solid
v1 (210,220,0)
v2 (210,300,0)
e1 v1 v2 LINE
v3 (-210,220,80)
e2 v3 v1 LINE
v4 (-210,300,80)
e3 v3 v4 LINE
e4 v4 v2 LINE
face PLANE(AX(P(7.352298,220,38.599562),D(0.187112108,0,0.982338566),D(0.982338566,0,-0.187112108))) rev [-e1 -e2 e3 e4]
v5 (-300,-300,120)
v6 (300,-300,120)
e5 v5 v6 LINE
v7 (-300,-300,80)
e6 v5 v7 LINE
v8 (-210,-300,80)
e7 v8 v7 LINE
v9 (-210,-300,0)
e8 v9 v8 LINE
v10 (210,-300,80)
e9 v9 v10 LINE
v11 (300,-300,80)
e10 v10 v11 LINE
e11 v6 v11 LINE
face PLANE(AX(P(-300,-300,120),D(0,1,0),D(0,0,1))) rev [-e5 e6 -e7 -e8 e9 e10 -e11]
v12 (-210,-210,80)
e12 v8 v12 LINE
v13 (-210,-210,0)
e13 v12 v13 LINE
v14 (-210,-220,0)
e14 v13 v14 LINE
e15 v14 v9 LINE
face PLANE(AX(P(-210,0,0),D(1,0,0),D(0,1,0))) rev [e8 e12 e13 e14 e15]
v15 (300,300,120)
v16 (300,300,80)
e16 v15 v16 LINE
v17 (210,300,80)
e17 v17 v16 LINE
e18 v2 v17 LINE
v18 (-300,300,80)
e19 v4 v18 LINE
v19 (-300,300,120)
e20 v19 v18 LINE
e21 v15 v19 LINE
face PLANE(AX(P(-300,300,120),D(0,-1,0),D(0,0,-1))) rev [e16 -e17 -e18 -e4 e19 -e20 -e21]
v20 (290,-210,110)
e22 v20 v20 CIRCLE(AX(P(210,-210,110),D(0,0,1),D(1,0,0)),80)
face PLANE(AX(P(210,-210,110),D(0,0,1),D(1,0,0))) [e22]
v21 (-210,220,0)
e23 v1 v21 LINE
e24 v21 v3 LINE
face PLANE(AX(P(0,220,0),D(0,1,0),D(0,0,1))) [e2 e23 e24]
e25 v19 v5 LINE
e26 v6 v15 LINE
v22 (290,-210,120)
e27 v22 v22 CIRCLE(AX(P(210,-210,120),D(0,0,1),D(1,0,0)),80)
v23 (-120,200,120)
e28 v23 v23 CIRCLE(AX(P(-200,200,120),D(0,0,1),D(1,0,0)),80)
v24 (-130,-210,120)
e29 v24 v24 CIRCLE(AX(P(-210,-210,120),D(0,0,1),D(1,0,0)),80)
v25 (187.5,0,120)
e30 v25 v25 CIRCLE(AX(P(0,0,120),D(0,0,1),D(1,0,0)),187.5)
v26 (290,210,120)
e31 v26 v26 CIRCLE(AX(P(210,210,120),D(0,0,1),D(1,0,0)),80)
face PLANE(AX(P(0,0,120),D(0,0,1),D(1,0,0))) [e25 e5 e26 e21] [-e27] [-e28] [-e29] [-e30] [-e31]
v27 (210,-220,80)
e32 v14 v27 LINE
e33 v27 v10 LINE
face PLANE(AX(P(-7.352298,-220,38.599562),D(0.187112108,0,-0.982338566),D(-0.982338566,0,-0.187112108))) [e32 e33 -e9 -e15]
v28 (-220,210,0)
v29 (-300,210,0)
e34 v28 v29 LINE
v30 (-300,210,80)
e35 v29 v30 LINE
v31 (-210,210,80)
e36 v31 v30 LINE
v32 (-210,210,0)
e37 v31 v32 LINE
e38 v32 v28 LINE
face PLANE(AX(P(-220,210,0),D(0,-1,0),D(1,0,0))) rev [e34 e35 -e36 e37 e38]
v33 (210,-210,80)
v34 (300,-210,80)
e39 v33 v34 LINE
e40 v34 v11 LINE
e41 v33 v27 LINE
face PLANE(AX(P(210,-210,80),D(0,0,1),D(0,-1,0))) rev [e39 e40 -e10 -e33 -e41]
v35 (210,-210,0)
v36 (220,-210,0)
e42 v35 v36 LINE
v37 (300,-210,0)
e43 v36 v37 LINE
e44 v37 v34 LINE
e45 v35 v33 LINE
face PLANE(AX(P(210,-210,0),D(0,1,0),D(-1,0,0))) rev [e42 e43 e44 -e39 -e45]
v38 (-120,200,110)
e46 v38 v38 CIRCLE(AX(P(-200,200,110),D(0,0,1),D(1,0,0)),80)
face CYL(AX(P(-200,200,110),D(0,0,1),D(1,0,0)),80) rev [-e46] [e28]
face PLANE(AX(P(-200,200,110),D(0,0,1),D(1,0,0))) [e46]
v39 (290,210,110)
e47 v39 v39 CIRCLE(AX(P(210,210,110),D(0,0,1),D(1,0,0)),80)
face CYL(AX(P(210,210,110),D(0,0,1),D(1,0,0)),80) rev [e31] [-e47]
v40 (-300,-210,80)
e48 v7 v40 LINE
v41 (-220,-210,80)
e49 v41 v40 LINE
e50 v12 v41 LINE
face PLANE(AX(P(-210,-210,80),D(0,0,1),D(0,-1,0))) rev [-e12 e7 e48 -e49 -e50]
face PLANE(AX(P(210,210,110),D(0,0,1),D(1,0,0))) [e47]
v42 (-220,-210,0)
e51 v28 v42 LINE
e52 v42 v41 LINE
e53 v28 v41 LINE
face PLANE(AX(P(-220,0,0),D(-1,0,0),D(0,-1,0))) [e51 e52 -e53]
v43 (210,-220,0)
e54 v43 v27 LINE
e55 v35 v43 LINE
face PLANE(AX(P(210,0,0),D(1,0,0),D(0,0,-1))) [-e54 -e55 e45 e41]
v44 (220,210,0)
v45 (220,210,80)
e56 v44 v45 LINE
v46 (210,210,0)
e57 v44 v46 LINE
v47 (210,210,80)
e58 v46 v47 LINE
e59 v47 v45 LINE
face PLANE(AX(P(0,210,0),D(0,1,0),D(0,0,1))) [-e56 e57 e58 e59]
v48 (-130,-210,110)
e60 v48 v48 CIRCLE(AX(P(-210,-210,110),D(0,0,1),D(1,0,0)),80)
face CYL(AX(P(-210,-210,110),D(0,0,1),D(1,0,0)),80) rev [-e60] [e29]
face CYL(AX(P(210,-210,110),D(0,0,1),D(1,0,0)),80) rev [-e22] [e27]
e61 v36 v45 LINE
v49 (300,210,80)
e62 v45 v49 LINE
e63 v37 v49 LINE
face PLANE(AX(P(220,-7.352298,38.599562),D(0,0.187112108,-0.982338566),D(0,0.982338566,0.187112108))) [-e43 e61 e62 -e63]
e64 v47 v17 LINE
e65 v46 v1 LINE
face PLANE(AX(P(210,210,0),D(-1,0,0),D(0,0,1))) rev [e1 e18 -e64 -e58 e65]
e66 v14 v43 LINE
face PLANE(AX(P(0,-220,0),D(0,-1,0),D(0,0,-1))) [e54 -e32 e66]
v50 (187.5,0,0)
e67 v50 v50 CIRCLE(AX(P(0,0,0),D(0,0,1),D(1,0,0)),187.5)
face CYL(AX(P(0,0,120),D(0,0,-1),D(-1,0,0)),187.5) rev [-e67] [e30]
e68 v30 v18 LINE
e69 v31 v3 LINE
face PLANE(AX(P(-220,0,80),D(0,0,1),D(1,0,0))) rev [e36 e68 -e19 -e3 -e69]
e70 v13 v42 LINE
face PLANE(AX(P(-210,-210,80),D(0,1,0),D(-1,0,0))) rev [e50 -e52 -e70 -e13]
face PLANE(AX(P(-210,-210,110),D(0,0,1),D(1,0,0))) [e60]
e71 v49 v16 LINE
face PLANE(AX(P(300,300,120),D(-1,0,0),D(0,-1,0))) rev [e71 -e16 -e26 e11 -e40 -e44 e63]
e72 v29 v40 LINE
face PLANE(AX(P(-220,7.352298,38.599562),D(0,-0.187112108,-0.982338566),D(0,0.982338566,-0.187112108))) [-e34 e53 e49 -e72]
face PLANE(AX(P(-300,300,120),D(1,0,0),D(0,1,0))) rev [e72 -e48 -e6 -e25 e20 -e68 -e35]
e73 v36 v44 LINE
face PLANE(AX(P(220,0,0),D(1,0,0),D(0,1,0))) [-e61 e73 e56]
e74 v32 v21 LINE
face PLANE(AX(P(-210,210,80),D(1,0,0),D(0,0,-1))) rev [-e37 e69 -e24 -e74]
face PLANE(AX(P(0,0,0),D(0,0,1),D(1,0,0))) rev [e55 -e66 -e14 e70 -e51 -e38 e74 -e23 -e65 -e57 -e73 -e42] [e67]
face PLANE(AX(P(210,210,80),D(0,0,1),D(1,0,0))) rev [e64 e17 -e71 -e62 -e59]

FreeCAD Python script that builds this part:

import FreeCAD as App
import Part
import Sketcher
from FreeCAD import Vector
Q = App.Units.Quantity

doc = App.newDocument("Part")
body = doc.addObject("PartDesign::Body", "Body")

sketch1 = body.newObject("Sketcher::SketchObject", "Sketch")
sketch1.AttachmentSupport = (doc.getObject("XY_Plane"), [""])
sketch1.MapMode = "FlatFace"
sketch1.addGeometry([
    Part.LineSegment(Vector(-300, 300, 0), Vector(-300, -300, 0)),
    Part.LineSegment(Vector(-300, -300, 0), Vector(300, -300, 0)),
    Part.LineSegment(Vector(300, -300, 0), Vector(300, 300, 0)),
    Part.LineSegment(Vector(300, 300, 0), Vector(-300, 300, 0)),
    Part.Circle(Vector(0, 0, 0), Vector(0, 0, 1), 188),
], False)
sketch1.addConstraint([
    Sketcher.Constraint("Coincident", 0, 2, 1, 1),
    Sketcher.Constraint("Coincident", 1, 2, 2, 1),
    Sketcher.Constraint("Coincident", 2, 2, 3, 1),
    Sketcher.Constraint("Coincident", 3, 2, 0, 1),
    Sketcher.Constraint("Vertical", 0),
    Sketcher.Constraint("Horizontal", 1),
    Sketcher.Constraint("Vertical", 2),
    Sketcher.Constraint("Horizontal", 3),
    Sketcher.Constraint("Coincident", 4, 3, -1, 1),
    Sketcher.Constraint("Symmetric", 0, 2, 2, 2, -1, 1),
    Sketcher.Constraint("Equal", 3, 0),
    Sketcher.Constraint("Diameter", 4, Q("375 mm")),
    Sketcher.Constraint("DistanceX", 1, 1, 1, 2, Q("600 mm")),
])
pad1 = body.newObject("PartDesign::Pad", "Pad")
pad1.Profile = sketch1
pad1.Length = 120

sketch2 = body.newObject("Sketcher::SketchObject", "Sketch001")
sketch2.AttachmentSupport = (doc.getObject("YZ_Plane"), [""])
sketch2.MapMode = "FlatFace"
sketch2.AttachmentOffset = App.Placement(Vector(0, 0, -300), App.Rotation())
sketch2.addGeometry([
    Part.LineSegment(Vector(210, 0, 0), Vector(-210, 0, 0)),
    Part.LineSegment(Vector(-210, 0, 0), Vector(-210, 80, 0)),
    Part.LineSegment(Vector(-210, 80, 0), Vector(210, 0, 0)),
    Part.LineSegment(Vector(300, 0, 0), Vector(210, 0, 0)),
    Part.LineSegment(Vector(210, 0, 0), Vector(210, 80, 0)),
    Part.LineSegment(Vector(210, 80, 0), Vector(300, 80, 0)),
    Part.LineSegment(Vector(300, 80, 0), Vector(300, 0, 0)),
], False)
sketch2.addConstraint([
    Sketcher.Constraint("Coincident", 0, 2, 1, 1),
    Sketcher.Constraint("Coincident", 1, 2, 2, 1),
    Sketcher.Constraint("Coincident", 2, 2, 0, 1),
    Sketcher.Constraint("Coincident", 3, 2, 4, 1),
    Sketcher.Constraint("Coincident", 4, 2, 5, 1),
    Sketcher.Constraint("Coincident", 5, 2, 6, 1),
    Sketcher.Constraint("Coincident", 6, 2, 3, 1),
    Sketcher.Constraint("Horizontal", 0),
    Sketcher.Constraint("Vertical", 1),
    Sketcher.Constraint("Horizontal", 3),
    Sketcher.Constraint("Vertical", 4),
    Sketcher.Constraint("Horizontal", 5),
    Sketcher.Constraint("Vertical", 6),
    Sketcher.Constraint("Coincident", 3, 2, 2, 2),
    Sketcher.Constraint("Symmetric", 0, 2, 2, 2, -1, 1),
    Sketcher.Constraint("Horizontal", 1, 2, 4, 2),
    Sketcher.Constraint("DistanceX", 0, 2, 0, 1, Q("420 mm")),
    Sketcher.Constraint("DistanceX", 3, 2, 3, 1, Q("90 mm")),
    Sketcher.Constraint("DistanceY", 1, 1, 1, 2, Q("80 mm")),
])
pocket1 = body.newObject("PartDesign::Pocket", "Pocket")
pocket1.Profile = sketch2
pocket1.Length = 80
pocket1.Reversed = True

sketch3 = body.newObject("Sketcher::SketchObject", "Sketch002")
sketch3.AttachmentSupport = (doc.getObject("YZ_Plane"), [""])
sketch3.MapMode = "FlatFace"
sketch3.AttachmentOffset = App.Placement(Vector(0, 0, -300), App.Rotation())
sketch3.addGeometry([
    Part.LineSegment(Vector(-210, 0, 0), Vector(-300, 0, 0)),
    Part.LineSegment(Vector(-300, 0, 0), Vector(-300, 80, 0)),
    Part.LineSegment(Vector(-300, 80, 0), Vector(-210, 80, 0)),
    Part.LineSegment(Vector(-210, 80, 0), Vector(-210, 0, 0)),
], False)
sketch3.addConstraint([
    Sketcher.Constraint("Coincident", 0, 2, 1, 1),
    Sketcher.Constraint("Coincident", 1, 2, 2, 1),
    Sketcher.Constraint("Coincident", 2, 2, 3, 1),
    Sketcher.Constraint("Coincident", 3, 2, 0, 1),
    Sketcher.Constraint("Horizontal", 0),
    Sketcher.Constraint("Vertical", 1),
    Sketcher.Constraint("Horizontal", 2),
    Sketcher.Constraint("Vertical", 3),
    Sketcher.Constraint("PointOnObject", 0, 2, -1),
    Sketcher.Constraint("DistanceX", 0, 2, 0, 1, Q("90 mm")),
    Sketcher.Constraint("DistanceY", 1, 1, 1, 2, Q("80 mm")),
    Sketcher.Constraint("DistanceX", 0, 2, -1, 1, Q("300 mm")),
])
pocket2 = body.newObject("PartDesign::Pocket", "Pocket001")
pocket2.Profile = sketch3
pocket2.Length = 90
pocket2.Reversed = True

sketch4 = body.newObject("Sketcher::SketchObject", "Sketch003")
sketch4.AttachmentSupport = (doc.getObject("XZ_Plane"), [""])
sketch4.MapMode = "FlatFace"
sketch4.AttachmentOffset = App.Placement(Vector(0, 0, -300), App.Rotation())
sketch4.addGeometry([
    Part.LineSegment(Vector(-210, 80, 0), Vector(210, 0, 0)),
    Part.LineSegment(Vector(210, 0, 0), Vector(-210, 0, 0)),
    Part.LineSegment(Vector(-210, 0, 0), Vector(-210, 80, 0)),
], False)
sketch4.addConstraint([
    Sketcher.Constraint("Coincident", 0, 2, 1, 1),
    Sketcher.Constraint("Coincident", 1, 2, 2, 1),
    Sketcher.Constraint("Coincident", 2, 2, 0, 1),
    Sketcher.Constraint("Horizontal", 1),
    Sketcher.Constraint("Vertical", 2),
    Sketcher.Constraint("Symmetric", 0, 2, 1, 2, -1, 1),
    Sketcher.Constraint("DistanceX", 1, 2, 1, 1, Q("420 mm")),
    Sketcher.Constraint("DistanceY", 2, 1, 2, 2, Q("80 mm")),
])
pocket3 = body.newObject("PartDesign::Pocket", "Pocket002")
pocket3.Profile = sketch4
pocket3.Length = 80
pocket3.Reversed = True

sketch5 = body.newObject("Sketcher::SketchObject", "Sketch004")
sketch5.AttachmentSupport = (doc.getObject("XZ_Plane"), [""])
sketch5.MapMode = "FlatFace"
sketch5.AttachmentOffset = App.Placement(Vector(0, 0, -300), App.Rotation())
sketch5.addGeometry([
    Part.LineSegment(Vector(-299, 0, 0), Vector(-299, 80, 0)),
    Part.LineSegment(Vector(-299, 80, 0), Vector(-210, 80, 0)),
    Part.LineSegment(Vector(-210, 80, 0), Vector(-210, 0, 0)),
    Part.LineSegment(Vector(-210, 0, 0), Vector(-299, 0, 0)),
], False)
sketch5.addConstraint([
    Sketcher.Constraint("Coincident", 0, 2, 1, 1),
    Sketcher.Constraint("Coincident", 1, 2, 2, 1),
    Sketcher.Constraint("Coincident", 2, 2, 3, 1),
    Sketcher.Constraint("Coincident", 3, 2, 0, 1),
    Sketcher.Constraint("Vertical", 0),
    Sketcher.Constraint("Horizontal", 1),
    Sketcher.Constraint("Vertical", 2),
    Sketcher.Constraint("Horizontal", 3),
    Sketcher.Constraint("PointOnObject", 2, 2, -1),
    Sketcher.Constraint("DistanceY", 0, 1, 0, 2, Q("80 mm")),
    Sketcher.Constraint("DistanceX", 1, 2, -1, 1, Q("210 mm")),
    Sketcher.Constraint("DistanceX", 1, 1, 1, 2, Q("89.245379 mm")),
])
pocket4 = body.newObject("PartDesign::Pocket", "Pocket003")
pocket4.Profile = sketch5
pocket4.Length = 90
pocket4.Reversed = True

sketch6 = body.newObject("Sketcher::SketchObject", "Sketch005")
sketch6.AttachmentSupport = (doc.getObject("YZ_Plane"), [""])
sketch6.MapMode = "FlatFace"
sketch6.AttachmentOffset = App.Placement(Vector(0, 0, 300), App.Rotation())
sketch6.addGeometry([
    Part.LineSegment(Vector(210, 80, 0), Vector(-210, 0, 0)),
    Part.LineSegment(Vector(-210, 0, 0), Vector(210, 0, 0)),
    Part.LineSegment(Vector(210, 0, 0), Vector(210, 80, 0)),
], False)
sketch6.addConstraint([
    Sketcher.Constraint("Coincident", 0, 2, 1, 1),
    Sketcher.Constraint("Coincident", 1, 2, 2, 1),
    Sketcher.Constraint("Coincident", 2, 2, 0, 1),
    Sketcher.Constraint("Horizontal", 1),
    Sketcher.Constraint("Vertical", 2),
    Sketcher.Constraint("Symmetric", 0, 2, 1, 2, -1, 1),
    Sketcher.Constraint("DistanceX", 1, 1, 1, 2, Q("420 mm")),
    Sketcher.Constraint("DistanceY", 2, 1, 2, 2, Q("80 mm")),
])
pocket5 = body.newObject("PartDesign::Pocket", "Pocket004")
pocket5.Profile = sketch6
pocket5.Length = 80

sketch7 = body.newObject("Sketcher::SketchObject", "Sketch006")
sketch7.AttachmentSupport = (doc.getObject("XZ_Plane"), [""])
sketch7.MapMode = "FlatFace"
sketch7.AttachmentOffset = App.Placement(Vector(0, 0, -300), App.Rotation())
sketch7.addGeometry([
    Part.LineSegment(Vector(210, 0, 0), Vector(210, 80, 0)),
    Part.LineSegment(Vector(210, 80, 0), Vector(300, 80, 0)),
    Part.LineSegment(Vector(300, 80, 0), Vector(300, 0, 0)),
    Part.LineSegment(Vector(300, 0, 0), Vector(210, 0, 0)),
], False)
sketch7.addConstraint([
    Sketcher.Constraint("Coincident", 0, 2, 1, 1),
    Sketcher.Constraint("Coincident", 1, 2, 2, 1),
    Sketcher.Constraint("Coincident", 2, 2, 3, 1),
    Sketcher.Constraint("Coincident", 3, 2, 0, 1),
    Sketcher.Constraint("Vertical", 0),
    Sketcher.Constraint("Horizontal", 1),
    Sketcher.Constraint("Vertical", 2),
    Sketcher.Constraint("Horizontal", 3),
    Sketcher.Constraint("PointOnObject", 2, 2, -1),
    Sketcher.Constraint("DistanceX", 1, 1, 1, 2, Q("90 mm")),
    Sketcher.Constraint("DistanceY", 0, 1, 0, 2, Q("80 mm")),
    Sketcher.Constraint("DistanceX", -1, 1, 0, 2, Q("210 mm")),
])
pocket6 = body.newObject("PartDesign::Pocket", "Pocket005")
pocket6.Profile = sketch7
pocket6.Length = 90
pocket6.Reversed = True

sketch8 = body.newObject("Sketcher::SketchObject", "Sketch007")
sketch8.AttachmentSupport = (doc.getObject("XZ_Plane"), [""])
sketch8.MapMode = "FlatFace"
sketch8.AttachmentOffset = App.Placement(Vector(0, 0, 300), App.Rotation())
sketch8.addGeometry([
    Part.LineSegment(Vector(210, 80, 0), Vector(-210, 0, 0)),
    Part.LineSegment(Vector(-210, 0, 0), Vector(210, 0, 0)),
    Part.LineSegment(Vector(210, 0, 0), Vector(210, 80, 0)),
], False)
sketch8.addConstraint([
    Sketcher.Constraint("Coincident", 0, 2, 1, 1),
    Sketcher.Constraint("Coincident", 1, 2, 2, 1),
    Sketcher.Constraint("Coincident", 2, 2, 0, 1),
    Sketcher.Constraint("Horizontal", 1),
    Sketcher.Constraint("Vertical", 2),
    Sketcher.Constraint("Symmetric", 0, 2, 1, 2, -1, 1),
    Sketcher.Constraint("DistanceX", 1, 1, 1, 2, Q("420 mm")),
    Sketcher.Constraint("DistanceY", 2, 1, 2, 2, Q("80 mm")),
])
pocket7 = body.newObject("PartDesign::Pocket", "Pocket006")
pocket7.Profile = sketch8
pocket7.Length = 80

sketch9 = body.newObject("Sketcher::SketchObject", "Sketch008")
sketch9.AttachmentSupport = (doc.getObject("YZ_Plane"), [""])
sketch9.MapMode = "FlatFace"
sketch9.AttachmentOffset = App.Placement(Vector(0, 0, 300), App.Rotation())
sketch9.addGeometry([
    Part.LineSegment(Vector(-210, 80, 0), Vector(-300, 80, 0)),
    Part.LineSegment(Vector(-300, 80, 0), Vector(-300, 0, 0)),
    Part.LineSegment(Vector(-300, 0, 0), Vector(-210, 0, 0)),
    Part.LineSegment(Vector(-210, 0, 0), Vector(-210, 80, 0)),
], False)
sketch9.addConstraint([
    Sketcher.Constraint("Coincident", 0, 2, 1, 1),
    Sketcher.Constraint("Coincident", 1, 2, 2, 1),
    Sketcher.Constraint("Coincident", 2, 2, 3, 1),
    Sketcher.Constraint("Coincident", 3, 2, 0, 1),
    Sketcher.Constraint("Horizontal", 0),
    Sketcher.Constraint("Vertical", 1),
    Sketcher.Constraint("Horizontal", 2),
    Sketcher.Constraint("Vertical", 3),
    Sketcher.Constraint("PointOnObject", 1, 2, -1),
    Sketcher.Constraint("DistanceX", 0, 2, 0, 1, Q("90 mm")),
    Sketcher.Constraint("DistanceY", 1, 2, 1, 1, Q("80 mm")),
    Sketcher.Constraint("DistanceX", 0, 2, -1, 1, Q("300 mm")),
])
pocket8 = body.newObject("PartDesign::Pocket", "Pocket007")
pocket8.Profile = sketch9
pocket8.Length = 90

sketch10 = body.newObject("Sketcher::SketchObject", "Sketch009")
sketch10.AttachmentSupport = (doc.getObject("XY_Plane"), [""])
sketch10.MapMode = "FlatFace"
sketch10.AttachmentOffset = App.Placement(Vector(0, 0, 120), App.Rotation())
sketch10.addGeometry(Part.Circle(Vector(-200, 200, 0), Vector(0, 0, 1), 80), False)
sketch10.addConstraint([
    Sketcher.Constraint("Diameter", 0, Q("160 mm")),
    Sketcher.Constraint("DistanceX", 0, 3, -1, 1, Q("200 mm")),
    Sketcher.Constraint("DistanceY", -1, 1, 0, 3, Q("200 mm")),
])
pocket9 = body.newObject("PartDesign::Pocket", "Pocket008")
pocket9.Profile = sketch10
pocket9.Length = 10

sketch11 = body.newObject("Sketcher::SketchObject", "Sketch010")
sketch11.AttachmentSupport = (doc.getObject("XY_Plane"), [""])
sketch11.MapMode = "FlatFace"
sketch11.AttachmentOffset = App.Placement(Vector(0, 0, 120), App.Rotation())
sketch11.addGeometry([
    Part.Circle(Vector(-210, -210, 0), Vector(0, 0, 1), 80),
    Part.Circle(Vector(210, -210, 0), Vector(0, 0, 1), 80),
    Part.Circle(Vector(210, 210, 0), Vector(0, 0, 1), 80),
], False)
sketch11.addConstraint([
    Sketcher.Constraint("Equal", 0, 1),
    Sketcher.Constraint("Equal", 1, 2),
    Sketcher.Constraint("Symmetric", 0, 3, 2, 3, -1, 1),
    Sketcher.Constraint("Symmetric", 0, 3, 1, 3, -2),
    Sketcher.Constraint("Diameter", 0, Q("160 mm")),
    Sketcher.Constraint("DistanceX", 0, 3, -1, 1, Q("210 mm")),
    Sketcher.Constraint("DistanceY", 0, 3, -1, 1, Q("210 mm")),
])
pocket10 = body.newObject("PartDesign::Pocket", "Pocket009")
pocket10.Profile = sketch11
pocket10.Length = 10

doc.recompute()
